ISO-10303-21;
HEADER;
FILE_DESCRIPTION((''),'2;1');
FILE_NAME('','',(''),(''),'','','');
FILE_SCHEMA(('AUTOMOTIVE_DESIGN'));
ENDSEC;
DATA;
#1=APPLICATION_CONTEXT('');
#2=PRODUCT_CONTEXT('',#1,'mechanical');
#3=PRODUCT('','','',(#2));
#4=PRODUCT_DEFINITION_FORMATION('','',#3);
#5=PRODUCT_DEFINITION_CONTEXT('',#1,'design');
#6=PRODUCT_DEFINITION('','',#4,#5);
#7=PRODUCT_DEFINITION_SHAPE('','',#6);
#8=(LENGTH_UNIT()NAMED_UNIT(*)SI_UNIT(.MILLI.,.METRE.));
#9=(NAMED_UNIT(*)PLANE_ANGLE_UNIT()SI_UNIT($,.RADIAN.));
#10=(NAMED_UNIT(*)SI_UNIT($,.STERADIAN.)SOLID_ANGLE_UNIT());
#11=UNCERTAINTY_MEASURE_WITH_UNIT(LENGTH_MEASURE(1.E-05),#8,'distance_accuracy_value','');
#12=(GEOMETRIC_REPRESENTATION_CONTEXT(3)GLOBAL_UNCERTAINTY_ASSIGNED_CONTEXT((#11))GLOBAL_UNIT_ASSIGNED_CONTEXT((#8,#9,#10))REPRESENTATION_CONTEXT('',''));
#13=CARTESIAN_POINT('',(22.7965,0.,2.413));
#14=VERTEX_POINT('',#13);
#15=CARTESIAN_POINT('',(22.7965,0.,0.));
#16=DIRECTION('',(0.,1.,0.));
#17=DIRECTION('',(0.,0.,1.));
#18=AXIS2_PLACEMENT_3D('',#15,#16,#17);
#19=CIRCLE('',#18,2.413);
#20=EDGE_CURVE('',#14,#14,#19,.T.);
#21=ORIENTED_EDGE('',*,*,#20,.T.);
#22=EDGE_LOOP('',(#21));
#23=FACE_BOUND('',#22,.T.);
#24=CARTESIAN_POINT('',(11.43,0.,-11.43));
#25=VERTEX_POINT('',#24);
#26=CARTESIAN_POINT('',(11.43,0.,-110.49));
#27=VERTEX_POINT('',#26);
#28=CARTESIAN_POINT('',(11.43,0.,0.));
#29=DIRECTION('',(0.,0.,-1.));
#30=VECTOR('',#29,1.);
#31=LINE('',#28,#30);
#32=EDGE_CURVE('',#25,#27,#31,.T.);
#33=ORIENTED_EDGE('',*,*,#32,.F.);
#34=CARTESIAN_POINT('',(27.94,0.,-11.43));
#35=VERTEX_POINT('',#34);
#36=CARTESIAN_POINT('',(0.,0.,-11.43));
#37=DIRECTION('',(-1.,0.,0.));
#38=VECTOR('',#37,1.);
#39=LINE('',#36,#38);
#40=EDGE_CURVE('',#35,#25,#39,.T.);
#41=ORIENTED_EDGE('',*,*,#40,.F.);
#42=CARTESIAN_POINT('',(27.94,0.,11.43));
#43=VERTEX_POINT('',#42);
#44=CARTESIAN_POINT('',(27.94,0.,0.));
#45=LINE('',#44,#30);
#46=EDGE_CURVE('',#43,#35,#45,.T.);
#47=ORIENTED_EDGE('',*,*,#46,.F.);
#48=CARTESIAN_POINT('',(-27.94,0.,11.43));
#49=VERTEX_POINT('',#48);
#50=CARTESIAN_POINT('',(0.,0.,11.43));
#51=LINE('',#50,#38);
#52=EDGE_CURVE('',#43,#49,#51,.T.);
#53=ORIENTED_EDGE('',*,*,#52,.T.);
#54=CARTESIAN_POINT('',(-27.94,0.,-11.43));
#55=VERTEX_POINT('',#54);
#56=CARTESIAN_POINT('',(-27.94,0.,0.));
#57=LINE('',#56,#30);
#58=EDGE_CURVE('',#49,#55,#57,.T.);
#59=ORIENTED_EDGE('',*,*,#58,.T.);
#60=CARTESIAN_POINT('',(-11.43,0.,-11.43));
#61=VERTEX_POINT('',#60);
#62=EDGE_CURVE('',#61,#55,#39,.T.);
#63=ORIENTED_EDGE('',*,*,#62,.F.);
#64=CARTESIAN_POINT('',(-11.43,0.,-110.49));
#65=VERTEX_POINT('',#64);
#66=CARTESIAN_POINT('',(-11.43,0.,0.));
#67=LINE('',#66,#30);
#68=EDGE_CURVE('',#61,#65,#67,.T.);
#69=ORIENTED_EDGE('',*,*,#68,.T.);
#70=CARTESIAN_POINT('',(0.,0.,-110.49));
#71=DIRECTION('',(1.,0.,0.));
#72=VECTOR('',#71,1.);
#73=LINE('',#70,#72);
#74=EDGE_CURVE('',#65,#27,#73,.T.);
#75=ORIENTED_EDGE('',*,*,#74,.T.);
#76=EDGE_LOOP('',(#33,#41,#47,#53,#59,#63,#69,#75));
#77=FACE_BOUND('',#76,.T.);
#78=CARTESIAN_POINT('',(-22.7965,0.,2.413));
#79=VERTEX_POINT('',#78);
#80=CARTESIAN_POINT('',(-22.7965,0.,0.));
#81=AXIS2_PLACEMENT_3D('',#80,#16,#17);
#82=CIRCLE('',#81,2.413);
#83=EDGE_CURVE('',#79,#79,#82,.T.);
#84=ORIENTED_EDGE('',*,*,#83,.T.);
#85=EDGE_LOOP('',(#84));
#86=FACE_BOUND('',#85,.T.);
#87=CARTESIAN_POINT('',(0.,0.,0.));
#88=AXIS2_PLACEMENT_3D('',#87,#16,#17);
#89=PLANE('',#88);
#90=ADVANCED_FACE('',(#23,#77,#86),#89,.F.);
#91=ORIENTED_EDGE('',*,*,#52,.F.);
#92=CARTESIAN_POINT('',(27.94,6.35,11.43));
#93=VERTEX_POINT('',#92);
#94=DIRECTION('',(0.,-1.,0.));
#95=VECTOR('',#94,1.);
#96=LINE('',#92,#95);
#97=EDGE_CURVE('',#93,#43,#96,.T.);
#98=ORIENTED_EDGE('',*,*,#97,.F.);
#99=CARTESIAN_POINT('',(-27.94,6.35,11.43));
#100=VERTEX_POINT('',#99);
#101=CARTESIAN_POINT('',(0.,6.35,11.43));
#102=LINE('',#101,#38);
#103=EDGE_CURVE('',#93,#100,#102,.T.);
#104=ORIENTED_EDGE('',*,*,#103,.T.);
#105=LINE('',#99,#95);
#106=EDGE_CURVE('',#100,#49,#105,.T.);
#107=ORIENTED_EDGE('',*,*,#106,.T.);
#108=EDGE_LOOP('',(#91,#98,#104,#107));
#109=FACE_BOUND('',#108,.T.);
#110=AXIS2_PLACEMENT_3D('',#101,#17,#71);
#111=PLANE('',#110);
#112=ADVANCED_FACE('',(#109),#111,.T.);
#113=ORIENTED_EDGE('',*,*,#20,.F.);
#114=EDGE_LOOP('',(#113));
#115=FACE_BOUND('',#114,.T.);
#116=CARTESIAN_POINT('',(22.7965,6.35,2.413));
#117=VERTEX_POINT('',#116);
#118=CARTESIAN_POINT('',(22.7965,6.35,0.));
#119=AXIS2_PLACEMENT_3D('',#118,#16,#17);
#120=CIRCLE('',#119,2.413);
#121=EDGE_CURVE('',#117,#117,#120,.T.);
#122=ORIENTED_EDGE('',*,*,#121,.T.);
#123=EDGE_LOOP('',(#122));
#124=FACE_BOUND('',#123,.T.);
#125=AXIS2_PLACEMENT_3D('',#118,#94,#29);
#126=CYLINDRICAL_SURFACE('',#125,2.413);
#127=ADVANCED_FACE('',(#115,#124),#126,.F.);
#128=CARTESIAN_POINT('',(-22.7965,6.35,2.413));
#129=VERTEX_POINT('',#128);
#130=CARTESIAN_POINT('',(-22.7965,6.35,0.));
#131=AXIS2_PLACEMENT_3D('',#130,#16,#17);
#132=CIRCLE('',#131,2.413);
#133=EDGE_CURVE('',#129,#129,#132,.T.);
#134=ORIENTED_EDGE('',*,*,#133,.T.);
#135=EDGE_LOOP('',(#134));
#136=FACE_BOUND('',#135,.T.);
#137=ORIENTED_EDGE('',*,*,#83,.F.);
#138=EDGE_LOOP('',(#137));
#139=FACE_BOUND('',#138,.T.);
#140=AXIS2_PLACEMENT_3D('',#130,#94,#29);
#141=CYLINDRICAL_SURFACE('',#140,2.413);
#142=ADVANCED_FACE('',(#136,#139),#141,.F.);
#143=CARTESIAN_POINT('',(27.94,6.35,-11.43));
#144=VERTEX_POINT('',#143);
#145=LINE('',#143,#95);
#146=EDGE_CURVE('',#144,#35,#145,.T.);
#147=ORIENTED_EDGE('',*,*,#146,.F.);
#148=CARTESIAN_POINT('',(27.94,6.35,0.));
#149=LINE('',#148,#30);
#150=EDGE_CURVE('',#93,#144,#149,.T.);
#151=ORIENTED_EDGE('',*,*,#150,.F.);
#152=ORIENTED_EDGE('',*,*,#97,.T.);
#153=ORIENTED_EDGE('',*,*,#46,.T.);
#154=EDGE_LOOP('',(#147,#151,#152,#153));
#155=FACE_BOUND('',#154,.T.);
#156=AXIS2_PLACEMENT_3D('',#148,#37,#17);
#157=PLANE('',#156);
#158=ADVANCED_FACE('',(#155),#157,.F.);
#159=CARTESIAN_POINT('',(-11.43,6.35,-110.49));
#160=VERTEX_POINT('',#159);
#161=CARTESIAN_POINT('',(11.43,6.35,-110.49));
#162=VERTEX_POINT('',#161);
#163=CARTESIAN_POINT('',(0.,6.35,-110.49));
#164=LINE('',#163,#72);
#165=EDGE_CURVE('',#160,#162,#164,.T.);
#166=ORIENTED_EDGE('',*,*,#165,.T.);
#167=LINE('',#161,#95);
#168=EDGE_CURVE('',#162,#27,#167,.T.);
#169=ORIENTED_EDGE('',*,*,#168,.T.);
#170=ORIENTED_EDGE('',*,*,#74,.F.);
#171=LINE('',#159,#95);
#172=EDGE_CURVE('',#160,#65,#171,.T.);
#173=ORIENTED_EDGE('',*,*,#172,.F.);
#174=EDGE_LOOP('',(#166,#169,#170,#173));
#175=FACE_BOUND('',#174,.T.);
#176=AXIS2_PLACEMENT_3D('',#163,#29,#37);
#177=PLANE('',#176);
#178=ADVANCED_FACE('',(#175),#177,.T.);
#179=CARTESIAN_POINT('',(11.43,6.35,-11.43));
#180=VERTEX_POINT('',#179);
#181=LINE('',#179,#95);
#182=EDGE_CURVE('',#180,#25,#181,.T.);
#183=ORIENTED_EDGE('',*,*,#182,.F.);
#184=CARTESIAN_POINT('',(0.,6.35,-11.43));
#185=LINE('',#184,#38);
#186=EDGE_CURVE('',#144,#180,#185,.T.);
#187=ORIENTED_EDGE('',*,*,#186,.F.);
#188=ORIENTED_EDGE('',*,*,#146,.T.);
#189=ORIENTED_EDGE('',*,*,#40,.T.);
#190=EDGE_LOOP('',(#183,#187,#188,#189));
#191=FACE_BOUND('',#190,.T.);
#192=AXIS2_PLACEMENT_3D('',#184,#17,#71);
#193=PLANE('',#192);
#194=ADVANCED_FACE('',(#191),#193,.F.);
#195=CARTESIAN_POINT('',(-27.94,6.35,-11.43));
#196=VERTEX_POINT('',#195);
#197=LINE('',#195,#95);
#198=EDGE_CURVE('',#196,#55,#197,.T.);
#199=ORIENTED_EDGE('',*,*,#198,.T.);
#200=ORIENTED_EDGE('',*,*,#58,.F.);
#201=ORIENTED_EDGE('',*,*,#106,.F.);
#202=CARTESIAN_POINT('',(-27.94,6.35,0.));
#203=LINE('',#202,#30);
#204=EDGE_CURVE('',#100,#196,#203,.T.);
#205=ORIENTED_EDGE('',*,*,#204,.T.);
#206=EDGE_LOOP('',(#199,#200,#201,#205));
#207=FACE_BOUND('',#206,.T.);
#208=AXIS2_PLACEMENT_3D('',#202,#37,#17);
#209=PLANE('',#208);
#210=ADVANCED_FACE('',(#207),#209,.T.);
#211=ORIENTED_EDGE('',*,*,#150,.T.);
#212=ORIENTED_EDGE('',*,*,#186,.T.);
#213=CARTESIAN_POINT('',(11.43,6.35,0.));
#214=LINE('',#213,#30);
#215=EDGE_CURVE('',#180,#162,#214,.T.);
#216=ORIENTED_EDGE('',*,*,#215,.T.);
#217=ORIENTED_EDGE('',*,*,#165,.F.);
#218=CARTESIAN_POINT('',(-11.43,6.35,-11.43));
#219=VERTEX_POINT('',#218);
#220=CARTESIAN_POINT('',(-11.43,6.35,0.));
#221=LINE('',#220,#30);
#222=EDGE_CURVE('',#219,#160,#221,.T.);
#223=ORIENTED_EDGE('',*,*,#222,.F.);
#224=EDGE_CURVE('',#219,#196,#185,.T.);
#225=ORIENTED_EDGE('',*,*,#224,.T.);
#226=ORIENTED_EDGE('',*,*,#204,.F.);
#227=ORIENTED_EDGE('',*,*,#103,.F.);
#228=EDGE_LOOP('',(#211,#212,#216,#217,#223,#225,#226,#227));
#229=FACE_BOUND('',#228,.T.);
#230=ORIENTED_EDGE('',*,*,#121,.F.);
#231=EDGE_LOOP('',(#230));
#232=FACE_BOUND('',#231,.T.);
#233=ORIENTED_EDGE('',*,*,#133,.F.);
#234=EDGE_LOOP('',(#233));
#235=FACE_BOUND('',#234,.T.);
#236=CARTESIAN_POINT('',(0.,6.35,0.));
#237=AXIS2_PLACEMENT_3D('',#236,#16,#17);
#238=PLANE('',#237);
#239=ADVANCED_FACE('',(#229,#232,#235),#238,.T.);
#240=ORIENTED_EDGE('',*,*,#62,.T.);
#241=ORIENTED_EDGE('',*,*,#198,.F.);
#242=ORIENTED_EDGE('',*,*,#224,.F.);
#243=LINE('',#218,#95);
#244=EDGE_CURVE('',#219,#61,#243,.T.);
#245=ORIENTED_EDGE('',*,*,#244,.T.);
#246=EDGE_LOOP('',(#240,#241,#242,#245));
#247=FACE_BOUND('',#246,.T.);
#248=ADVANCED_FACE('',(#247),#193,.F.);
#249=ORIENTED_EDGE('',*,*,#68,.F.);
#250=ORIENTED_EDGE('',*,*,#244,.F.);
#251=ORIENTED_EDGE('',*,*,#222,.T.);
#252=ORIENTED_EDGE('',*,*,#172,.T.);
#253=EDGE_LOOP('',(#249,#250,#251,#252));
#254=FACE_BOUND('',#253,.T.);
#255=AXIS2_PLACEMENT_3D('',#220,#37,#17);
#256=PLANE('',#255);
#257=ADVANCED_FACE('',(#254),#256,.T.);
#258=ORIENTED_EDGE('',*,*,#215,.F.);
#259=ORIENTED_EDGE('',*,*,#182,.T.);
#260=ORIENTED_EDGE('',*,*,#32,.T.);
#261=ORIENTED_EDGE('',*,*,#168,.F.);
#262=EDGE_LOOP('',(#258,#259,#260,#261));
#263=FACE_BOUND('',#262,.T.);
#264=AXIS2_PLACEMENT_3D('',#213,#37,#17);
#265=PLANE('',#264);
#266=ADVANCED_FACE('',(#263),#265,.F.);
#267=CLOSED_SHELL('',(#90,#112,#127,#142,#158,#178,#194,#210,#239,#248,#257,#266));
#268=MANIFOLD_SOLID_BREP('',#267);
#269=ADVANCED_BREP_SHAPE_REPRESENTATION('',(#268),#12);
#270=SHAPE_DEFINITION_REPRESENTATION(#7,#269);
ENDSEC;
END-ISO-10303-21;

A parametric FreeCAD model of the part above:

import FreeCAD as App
import Part
import Sketcher
Q = App.Units.Quantity


def add_polygon(sketch, points):
    """Adds a closed chain of lines whose ends are joined by coincident constraints."""
    first, n = sketch.GeometryCount, len(points)
    for a, b in zip(points, points[1:] + points[:1]):
        sketch.addGeometry(Part.LineSegment(App.Vector(*a, 0), App.Vector(*b, 0)), False)
    for i in range(n):
        sketch.addConstraint(Sketcher.Constraint("Coincident", first + i, 2, first + (i + 1) % n, 1))

doc = App.newDocument("Part")
body = doc.addObject("PartDesign::Body", "Body")

# Sketch on XZ plane
sketch1 = body.newObject("Sketcher::SketchObject", "Sketch")
sketch1.AttachmentSupport = (doc.getObject("XZ_Plane"), [""])
sketch1.MapMode = "FlatFace"
add_polygon(sketch1, [(-27.9, 11.4), (27.9, 11.4), (27.9, -11.4), (11.4, -11.4), (11.4, -110.5), (-11.4, -110.5), (-11.4, -11.4), (-27.9, -11.4)])  # lines 0-7
sketch1.addGeometry(Part.Circle(App.Vector(-22.8, 0, 0), App.Vector(0, 0, 1), 2.4), False)  # 8
sketch1.addGeometry(Part.Circle(App.Vector(22.8, 0, 0), App.Vector(0, 0, 1), 2.4), False)  # 9
sketch1.addConstraint(Sketcher.Constraint("Horizontal", 0))
sketch1.addConstraint(Sketcher.Constraint("Vertical", 1))
sketch1.addConstraint(Sketcher.Constraint("Horizontal", 2))
sketch1.addConstraint(Sketcher.Constraint("Vertical", 3))
sketch1.addConstraint(Sketcher.Constraint("Horizontal", 4))
sketch1.addConstraint(Sketcher.Constraint("Vertical", 5))
sketch1.addConstraint(Sketcher.Constraint("Horizontal", 6))
sketch1.addConstraint(Sketcher.Constraint("Vertical", 7))
sketch1.addConstraint(Sketcher.Constraint("Equal", 8, 9))
sketch1.addConstraint(Sketcher.Constraint("Symmetric", 8, 3, 9, 3, -1, 1))
sketch1.addConstraint(Sketcher.Constraint("Symmetric", 0, 2, 6, 2, -1, 1))
sketch1.addConstraint(Sketcher.Constraint("Symmetric", 2, 2, 5, 2, -2))
sketch1.addConstraint(Sketcher.Constraint("PointOnObject", 8, 3, -1))
sketch1.addConstraint(Sketcher.Constraint("Equal", 4, 1))
sketch1.addConstraint(Sketcher.Constraint("Diameter", 8, Q("0.19 in")))
sketch1.addConstraint(Sketcher.Constraint("DistanceX", 0, 1, 0, 2, Q("2.2 in")))
sketch1.addConstraint(Sketcher.Constraint("DistanceX", 4, 2, 4, 1, Q("0.9 in")))
sketch1.addConstraint(Sketcher.Constraint("DistanceY", 3, 2, 3, 1, Q("3.9 in")))
sketch1.addConstraint(Sketcher.Constraint("DistanceX", 8, 3, 9, 3, Q("1.795 in")))
pad1 = body.newObject("PartDesign::Pad", "Pad")
pad1.Profile = sketch1
pad1.Length = Q("0.25 in")
pad1.Reversed = True

doc.recompute()
